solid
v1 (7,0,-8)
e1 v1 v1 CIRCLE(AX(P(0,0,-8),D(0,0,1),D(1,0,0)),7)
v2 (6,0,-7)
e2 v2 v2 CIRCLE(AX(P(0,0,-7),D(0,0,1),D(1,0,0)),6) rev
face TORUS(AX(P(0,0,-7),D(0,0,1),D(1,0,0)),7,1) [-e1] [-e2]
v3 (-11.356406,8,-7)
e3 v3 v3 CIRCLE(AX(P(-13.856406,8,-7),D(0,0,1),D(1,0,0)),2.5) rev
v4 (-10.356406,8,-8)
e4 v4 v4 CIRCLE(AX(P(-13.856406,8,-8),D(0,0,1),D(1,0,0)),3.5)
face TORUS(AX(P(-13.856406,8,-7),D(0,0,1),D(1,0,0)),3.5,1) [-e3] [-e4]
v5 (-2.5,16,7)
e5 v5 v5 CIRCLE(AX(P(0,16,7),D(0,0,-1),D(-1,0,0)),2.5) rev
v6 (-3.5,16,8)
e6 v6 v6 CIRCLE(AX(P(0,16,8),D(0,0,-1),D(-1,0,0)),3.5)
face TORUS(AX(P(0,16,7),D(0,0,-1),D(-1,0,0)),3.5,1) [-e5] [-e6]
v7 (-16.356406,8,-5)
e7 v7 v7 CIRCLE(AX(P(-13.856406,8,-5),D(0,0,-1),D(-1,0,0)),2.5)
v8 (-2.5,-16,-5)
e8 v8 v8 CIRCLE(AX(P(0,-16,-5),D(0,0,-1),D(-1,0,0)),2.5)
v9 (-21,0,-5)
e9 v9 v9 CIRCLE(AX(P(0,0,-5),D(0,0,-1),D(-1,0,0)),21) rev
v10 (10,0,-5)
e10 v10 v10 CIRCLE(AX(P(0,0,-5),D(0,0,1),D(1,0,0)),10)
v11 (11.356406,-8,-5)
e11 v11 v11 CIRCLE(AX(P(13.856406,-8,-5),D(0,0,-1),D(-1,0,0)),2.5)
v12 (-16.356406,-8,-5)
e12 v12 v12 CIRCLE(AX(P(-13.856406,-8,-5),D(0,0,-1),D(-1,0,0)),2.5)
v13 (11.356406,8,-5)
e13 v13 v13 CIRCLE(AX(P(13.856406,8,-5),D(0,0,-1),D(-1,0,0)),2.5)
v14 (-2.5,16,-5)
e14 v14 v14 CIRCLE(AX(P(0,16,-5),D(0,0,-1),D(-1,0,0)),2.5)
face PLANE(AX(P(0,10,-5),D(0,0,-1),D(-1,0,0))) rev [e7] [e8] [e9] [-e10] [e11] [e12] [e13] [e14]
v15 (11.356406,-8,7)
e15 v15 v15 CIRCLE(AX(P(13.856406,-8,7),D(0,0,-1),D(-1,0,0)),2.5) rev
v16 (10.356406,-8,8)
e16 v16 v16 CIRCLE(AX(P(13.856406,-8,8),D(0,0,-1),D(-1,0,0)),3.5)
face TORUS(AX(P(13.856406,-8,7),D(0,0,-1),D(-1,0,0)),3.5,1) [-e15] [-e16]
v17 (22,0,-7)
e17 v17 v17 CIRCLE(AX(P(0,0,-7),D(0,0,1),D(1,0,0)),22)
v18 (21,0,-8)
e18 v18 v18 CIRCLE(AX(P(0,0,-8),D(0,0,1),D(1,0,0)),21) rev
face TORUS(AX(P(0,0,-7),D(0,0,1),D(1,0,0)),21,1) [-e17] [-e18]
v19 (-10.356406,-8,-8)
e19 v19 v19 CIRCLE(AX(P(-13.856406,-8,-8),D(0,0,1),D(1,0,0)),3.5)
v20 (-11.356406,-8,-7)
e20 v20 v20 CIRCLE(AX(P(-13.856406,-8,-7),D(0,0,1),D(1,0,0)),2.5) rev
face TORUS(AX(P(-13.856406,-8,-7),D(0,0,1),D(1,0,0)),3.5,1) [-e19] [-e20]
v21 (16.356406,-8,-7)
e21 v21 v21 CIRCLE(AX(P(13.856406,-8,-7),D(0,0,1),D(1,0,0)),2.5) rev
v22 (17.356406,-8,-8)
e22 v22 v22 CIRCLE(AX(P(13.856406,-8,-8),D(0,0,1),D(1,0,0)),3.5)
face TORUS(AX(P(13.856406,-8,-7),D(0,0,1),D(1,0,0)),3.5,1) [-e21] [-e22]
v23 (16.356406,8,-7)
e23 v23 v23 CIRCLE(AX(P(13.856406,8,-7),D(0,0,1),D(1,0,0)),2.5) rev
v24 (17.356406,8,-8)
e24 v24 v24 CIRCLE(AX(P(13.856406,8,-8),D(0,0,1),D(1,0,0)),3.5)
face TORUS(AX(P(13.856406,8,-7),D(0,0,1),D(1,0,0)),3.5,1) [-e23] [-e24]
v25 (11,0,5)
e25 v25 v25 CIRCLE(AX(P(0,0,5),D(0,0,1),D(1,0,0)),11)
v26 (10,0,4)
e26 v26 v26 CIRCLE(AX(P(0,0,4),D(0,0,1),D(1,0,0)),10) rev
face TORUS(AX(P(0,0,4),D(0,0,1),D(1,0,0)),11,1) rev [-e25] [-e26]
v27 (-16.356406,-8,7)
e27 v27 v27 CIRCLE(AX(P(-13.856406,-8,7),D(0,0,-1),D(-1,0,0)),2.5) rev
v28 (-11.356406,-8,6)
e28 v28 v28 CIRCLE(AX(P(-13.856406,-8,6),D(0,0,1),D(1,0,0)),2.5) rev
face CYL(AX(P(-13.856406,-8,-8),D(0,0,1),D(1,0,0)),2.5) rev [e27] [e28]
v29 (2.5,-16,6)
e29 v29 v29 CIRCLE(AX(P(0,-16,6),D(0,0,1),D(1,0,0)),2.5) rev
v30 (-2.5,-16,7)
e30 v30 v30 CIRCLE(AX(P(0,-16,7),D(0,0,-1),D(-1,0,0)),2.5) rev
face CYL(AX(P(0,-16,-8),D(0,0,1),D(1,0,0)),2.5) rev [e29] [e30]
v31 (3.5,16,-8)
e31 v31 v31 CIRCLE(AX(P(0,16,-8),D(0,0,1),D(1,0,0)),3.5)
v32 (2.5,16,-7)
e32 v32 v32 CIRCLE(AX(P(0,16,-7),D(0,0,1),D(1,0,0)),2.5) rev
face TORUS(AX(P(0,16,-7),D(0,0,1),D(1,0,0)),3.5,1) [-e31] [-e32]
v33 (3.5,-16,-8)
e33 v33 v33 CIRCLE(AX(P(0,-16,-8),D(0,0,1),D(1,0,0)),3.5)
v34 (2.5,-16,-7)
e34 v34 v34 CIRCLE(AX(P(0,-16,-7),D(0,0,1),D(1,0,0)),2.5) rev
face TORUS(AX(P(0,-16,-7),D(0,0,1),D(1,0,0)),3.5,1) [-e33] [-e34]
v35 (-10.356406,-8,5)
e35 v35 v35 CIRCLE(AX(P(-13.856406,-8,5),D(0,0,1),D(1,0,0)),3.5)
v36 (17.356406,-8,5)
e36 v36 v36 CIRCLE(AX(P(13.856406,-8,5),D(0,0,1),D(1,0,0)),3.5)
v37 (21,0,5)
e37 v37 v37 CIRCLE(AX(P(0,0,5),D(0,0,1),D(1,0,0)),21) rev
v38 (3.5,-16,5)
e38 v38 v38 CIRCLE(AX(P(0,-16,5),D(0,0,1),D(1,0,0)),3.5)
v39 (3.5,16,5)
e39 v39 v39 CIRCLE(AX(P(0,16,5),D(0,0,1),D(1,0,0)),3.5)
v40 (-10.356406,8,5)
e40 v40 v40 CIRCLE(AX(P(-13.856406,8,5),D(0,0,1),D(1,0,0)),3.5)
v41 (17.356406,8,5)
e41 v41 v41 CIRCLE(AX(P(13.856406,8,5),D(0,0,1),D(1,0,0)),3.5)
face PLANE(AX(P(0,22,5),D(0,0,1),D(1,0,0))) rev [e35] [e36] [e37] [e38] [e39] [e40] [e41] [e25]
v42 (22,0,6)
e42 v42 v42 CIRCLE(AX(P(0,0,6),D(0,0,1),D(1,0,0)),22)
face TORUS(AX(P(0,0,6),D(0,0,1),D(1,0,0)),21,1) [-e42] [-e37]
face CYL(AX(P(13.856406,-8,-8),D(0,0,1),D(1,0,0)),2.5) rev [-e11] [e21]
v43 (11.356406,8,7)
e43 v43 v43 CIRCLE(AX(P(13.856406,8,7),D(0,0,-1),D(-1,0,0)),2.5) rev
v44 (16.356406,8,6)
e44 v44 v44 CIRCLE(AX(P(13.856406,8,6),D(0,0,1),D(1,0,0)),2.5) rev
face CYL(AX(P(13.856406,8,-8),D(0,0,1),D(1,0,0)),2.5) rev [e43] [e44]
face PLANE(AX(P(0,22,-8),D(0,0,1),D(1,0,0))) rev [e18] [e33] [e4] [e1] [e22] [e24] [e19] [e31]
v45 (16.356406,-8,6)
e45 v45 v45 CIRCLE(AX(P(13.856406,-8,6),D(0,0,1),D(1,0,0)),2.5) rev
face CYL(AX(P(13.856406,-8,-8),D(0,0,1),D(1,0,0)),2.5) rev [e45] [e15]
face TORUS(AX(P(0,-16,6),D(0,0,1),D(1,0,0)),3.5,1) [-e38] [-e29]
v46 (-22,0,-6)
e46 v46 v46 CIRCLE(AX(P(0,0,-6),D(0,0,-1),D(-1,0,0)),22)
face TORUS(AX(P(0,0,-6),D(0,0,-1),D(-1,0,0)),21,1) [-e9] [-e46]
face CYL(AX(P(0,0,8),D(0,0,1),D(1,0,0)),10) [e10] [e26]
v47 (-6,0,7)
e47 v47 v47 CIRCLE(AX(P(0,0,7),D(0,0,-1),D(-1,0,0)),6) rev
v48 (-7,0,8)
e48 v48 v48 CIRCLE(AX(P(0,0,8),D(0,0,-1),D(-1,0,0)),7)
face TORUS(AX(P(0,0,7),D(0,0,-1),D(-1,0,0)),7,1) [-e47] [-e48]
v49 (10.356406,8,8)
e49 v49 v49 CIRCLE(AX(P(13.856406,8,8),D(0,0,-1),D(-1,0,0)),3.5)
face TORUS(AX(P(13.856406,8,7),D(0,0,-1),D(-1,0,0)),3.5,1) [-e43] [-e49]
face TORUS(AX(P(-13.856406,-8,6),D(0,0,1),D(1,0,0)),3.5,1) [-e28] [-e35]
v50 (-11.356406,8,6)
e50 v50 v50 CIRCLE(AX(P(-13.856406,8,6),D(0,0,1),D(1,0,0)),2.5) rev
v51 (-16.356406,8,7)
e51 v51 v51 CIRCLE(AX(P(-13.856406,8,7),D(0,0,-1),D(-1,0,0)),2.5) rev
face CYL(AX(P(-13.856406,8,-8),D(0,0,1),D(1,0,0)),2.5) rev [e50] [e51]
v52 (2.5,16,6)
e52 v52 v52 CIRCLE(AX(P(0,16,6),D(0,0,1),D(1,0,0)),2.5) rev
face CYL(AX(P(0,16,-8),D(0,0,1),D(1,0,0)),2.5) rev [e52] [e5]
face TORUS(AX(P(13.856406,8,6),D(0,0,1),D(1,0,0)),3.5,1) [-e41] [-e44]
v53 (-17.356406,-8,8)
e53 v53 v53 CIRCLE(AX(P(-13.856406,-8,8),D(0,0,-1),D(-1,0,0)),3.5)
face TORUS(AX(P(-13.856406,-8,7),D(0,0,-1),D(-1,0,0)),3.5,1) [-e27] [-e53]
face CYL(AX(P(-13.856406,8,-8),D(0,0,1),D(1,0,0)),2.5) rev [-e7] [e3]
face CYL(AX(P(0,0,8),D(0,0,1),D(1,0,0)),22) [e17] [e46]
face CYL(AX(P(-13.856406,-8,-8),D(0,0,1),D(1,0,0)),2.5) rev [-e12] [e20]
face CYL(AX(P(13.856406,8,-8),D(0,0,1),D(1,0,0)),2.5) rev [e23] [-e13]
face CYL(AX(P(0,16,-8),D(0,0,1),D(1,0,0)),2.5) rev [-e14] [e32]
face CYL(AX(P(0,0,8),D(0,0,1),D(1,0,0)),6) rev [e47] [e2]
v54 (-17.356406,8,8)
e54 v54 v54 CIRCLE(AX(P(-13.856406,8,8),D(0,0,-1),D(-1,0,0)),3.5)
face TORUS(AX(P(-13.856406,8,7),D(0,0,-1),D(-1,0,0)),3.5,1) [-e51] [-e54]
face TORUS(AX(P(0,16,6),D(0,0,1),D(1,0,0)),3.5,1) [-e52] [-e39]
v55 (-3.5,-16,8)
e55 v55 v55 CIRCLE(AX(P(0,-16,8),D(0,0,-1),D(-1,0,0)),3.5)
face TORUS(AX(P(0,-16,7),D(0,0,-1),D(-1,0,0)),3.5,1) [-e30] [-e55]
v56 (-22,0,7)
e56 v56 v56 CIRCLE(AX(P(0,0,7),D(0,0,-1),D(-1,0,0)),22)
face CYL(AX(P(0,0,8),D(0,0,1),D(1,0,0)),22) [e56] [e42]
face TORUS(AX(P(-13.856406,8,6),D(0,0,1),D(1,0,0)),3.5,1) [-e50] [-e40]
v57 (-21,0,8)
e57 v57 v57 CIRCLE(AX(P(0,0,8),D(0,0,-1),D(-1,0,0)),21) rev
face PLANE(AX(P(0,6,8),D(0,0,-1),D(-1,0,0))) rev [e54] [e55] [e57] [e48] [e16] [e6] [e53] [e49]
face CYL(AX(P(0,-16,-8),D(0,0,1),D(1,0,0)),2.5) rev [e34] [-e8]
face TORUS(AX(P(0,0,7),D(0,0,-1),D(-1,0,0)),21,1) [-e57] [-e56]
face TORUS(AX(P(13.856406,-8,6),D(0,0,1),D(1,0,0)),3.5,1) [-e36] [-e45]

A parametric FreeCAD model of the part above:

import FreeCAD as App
import Part
import Sketcher

V = App.Vector


def edges_at(feature, points):
    """Names of the edges that pass closest to the given points."""
    edges = feature.Shape.Edges
    near = lambda p: min(range(len(edges)), key=lambda i: edges[i].distToShape(Part.Vertex(*p))[0])
    return sorted({f"Edge{near(p) + 1}" for p in points})


def add_polygon(sketch, points):
    """Adds a closed chain of lines whose ends are joined by coincident constraints."""
    first, n = sketch.GeometryCount, len(points)
    for a, b in zip(points, points[1:] + points[:1]):
        sketch.addGeometry(Part.LineSegment(App.Vector(*a, 0), App.Vector(*b, 0)), False)
    for i in range(n):
        sketch.addConstraint(Sketcher.Constraint("Coincident", first + i, 2, first + (i + 1) % n, 1))

doc = App.newDocument("Part")
body = doc.addObject("PartDesign::Body", "Body")

# Sketch on YZ plane
sketch1 = body.newObject("Sketcher::SketchObject", "Sketch")
sketch1.AttachmentSupport = (doc.getObject("YZ_Plane"), [""])
sketch1.MapMode = "FlatFace"
add_polygon(sketch1, [(10, -5), (10, 5), (22, 5), (22, 8), (6, 8), (6, -8), (22, -8), (22, -5)])  # lines 0-7
sketch1.addConstraint(Sketcher.Constraint("Vertical", 0))
sketch1.addConstraint(Sketcher.Constraint("Horizontal", 1))
sketch1.addConstraint(Sketcher.Constraint("Vertical", 2))
sketch1.addConstraint(Sketcher.Constraint("Horizontal", 3))
sketch1.addConstraint(Sketcher.Constraint("Vertical", 4))
sketch1.addConstraint(Sketcher.Constraint("Horizontal", 5))
sketch1.addConstraint(Sketcher.Constraint("Vertical", 6))
sketch1.addConstraint(Sketcher.Constraint("Horizontal", 7))
sketch1.addConstraint(Sketcher.Constraint("Symmetric", 2, 2, 5, 2, -1))
sketch1.addConstraint(Sketcher.Constraint("Equal", 5, 4))
sketch1.addConstraint(Sketcher.Constraint("Equal", 2, 6))
sketch1.addConstraint(Sketcher.Constraint("DistanceX", 1, 1, 1, 2, 12.0))
sketch1.addConstraint(Sketcher.Constraint("DistanceX", 3, 2, 3, 1, 16.0))
sketch1.addConstraint(Sketcher.Constraint("DistanceY", 0, 1, 0, 2, 10.0))
sketch1.addConstraint(Sketcher.Constraint("DistanceX", -1, 1, 0, 2, 10.0))
revolution = body.newObject("PartDesign::Revolution", "Revolution")
revolution.Profile = sketch1
revolution.ReferenceAxis = (sketch1, ["V_Axis"])
revolution.Angle = 360

# Sketch on XY plane
sketch2 = body.newObject("Sketcher::SketchObject", "Sketch001")
sketch2.AttachmentSupport = (doc.getObject("XY_Plane"), [""])
sketch2.MapMode = "FlatFace"
sketch2.AttachmentOffset = App.Placement(V(0, 0, 8), App.Rotation())
sketch2.addGeometry(Part.Circle(V(0, 16, 0), V(0, 0, 1), 2.5), False)
sketch2.addGeometry(Part.Circle(V(13.9, 8, 0), V(0, 0, 1), 2.5), False)
sketch2.addGeometry(Part.Circle(V(13.9, -8, 0), V(0, 0, 1), 2.5), False)
sketch2.addGeometry(Part.Circle(V(0, -16, 0), V(0, 0, 1), 2.5), False)
sketch2.addGeometry(Part.Circle(V(-13.9, -8, 0), V(0, 0, 1), 2.5), False)
sketch2.addGeometry(Part.Circle(V(-13.9, 8, 0), V(0, 0, 1), 2.5), False)
sketch2.addConstraint(Sketcher.Constraint("Equal", 0, 1))
sketch2.addConstraint(Sketcher.Constraint("Equal", 1, 2))
sketch2.addConstraint(Sketcher.Constraint("Equal", 2, 3))
sketch2.addConstraint(Sketcher.Constraint("Equal", 3, 4))
sketch2.addConstraint(Sketcher.Constraint("Equal", 4, 5))
sketch2.addConstraint(Sketcher.Constraint("Symmetric", 0, 3, 3, 3, -1, 1))
sketch2.addConstraint(Sketcher.Constraint("Symmetric", 1, 3, 4, 3, -1, 1))
sketch2.addConstraint(Sketcher.Constraint("Symmetric", 2, 3, 5, 3, -1, 1))
sketch2.addConstraint(Sketcher.Constraint("Symmetric", 2, 3, 4, 3, -2))
sketch2.addConstraint(Sketcher.Constraint("PointOnObject", 0, 3, -2))
sketch2.addConstraint(Sketcher.Constraint("Diameter", 0, 5.0))
sketch2.addConstraint(Sketcher.Constraint("DistanceY", -1, 1, 0, 3, 16.0))
sketch2.addConstraint(Sketcher.Constraint("DistanceY", -1, 1, 1, 3, 8.0))
sketch2.addConstraint(Sketcher.Constraint("DistanceX", -1, 1, 1, 3, 13.856406))
pocket1 = body.newObject("PartDesign::Pocket", "Pocket")
pocket1.Profile = sketch2
pocket1.Type = "ThroughAll"
pocket1.Midplane = True
doc.recompute()

fillet = body.newObject("PartDesign::Fillet", "Fillet")
fillet.Base = (pocket1, edges_at(pocket1, [
    (-22, 0, 5),
    (-2.5, 16, 8),
    (-2.5, 16, 5),
    (-2.5, 16, -8),
    (-16.356, 8, 8),
    (-16.356, 8, 5),
    (-16.356, 8, -8),
    (-16.356, -8, 8),
    (-16.356, -8, 5),
    (-16.356, -8, -8),
    (-2.5, -16, 8),
    (-2.5, -16, 5),
    (-2.5, -16, -8),
    (11.356, -8, 8),
    (11.356, -8, 5),
    (11.356, -8, -8),
    (11.356, 8, 8),
    (11.356, 8, 5),
    (11.356, 8, -8),
    (-10, 0, 5),
    (-22, 0, -5),
    (-22, 0, -8),
    (-6, 0, -8),
    (-6, 0, 8),
    (-22, 0, 8),
]))
fillet.Radius = 1

doc.recompute()
